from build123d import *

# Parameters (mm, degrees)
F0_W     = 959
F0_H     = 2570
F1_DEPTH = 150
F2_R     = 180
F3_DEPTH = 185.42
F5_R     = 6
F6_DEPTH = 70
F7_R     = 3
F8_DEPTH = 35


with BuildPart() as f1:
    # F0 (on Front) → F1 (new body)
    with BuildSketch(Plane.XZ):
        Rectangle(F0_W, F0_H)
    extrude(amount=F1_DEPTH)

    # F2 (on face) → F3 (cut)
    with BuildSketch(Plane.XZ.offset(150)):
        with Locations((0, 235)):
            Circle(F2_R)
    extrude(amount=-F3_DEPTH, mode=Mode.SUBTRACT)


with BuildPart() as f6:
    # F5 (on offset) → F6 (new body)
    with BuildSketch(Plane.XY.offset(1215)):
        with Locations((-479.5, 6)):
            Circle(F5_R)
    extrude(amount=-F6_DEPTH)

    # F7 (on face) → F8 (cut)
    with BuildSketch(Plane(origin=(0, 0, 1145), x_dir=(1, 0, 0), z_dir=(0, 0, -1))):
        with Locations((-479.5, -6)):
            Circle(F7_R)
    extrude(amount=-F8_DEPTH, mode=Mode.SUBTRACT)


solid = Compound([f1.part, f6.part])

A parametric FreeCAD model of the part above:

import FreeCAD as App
import Part
import Sketcher


def add_polygon(sketch, points):
    """Adds a closed chain of lines whose ends are joined by coincident constraints."""
    first, n = sketch.GeometryCount, len(points)
    for a, b in zip(points, points[1:] + points[:1]):
        sketch.addGeometry(Part.LineSegment(App.Vector(*a, 0), App.Vector(*b, 0)), False)
    for i in range(n):
        sketch.addConstraint(Sketcher.Constraint("Coincident", first + i, 2, first + (i + 1) % n, 1))

doc = App.newDocument("Part")
body = doc.addObject("PartDesign::Body", "Body")

sketch1 = doc.addObject("Sketcher::SketchObject", "Sketch")
body.addObject(sketch1)
sketch1.AttachmentSupport = (doc.XZ_Plane, [""])
sketch1.MapMode = "FlatFace"
add_polygon(sketch1, [(-480, 1285), (-480, -1285), (480, -1285), (480, 1285)])
sketch1.addConstraint(Sketcher.Constraint("Vertical", 0))
sketch1.addConstraint(Sketcher.Constraint("Horizontal", 1))
sketch1.addConstraint(Sketcher.Constraint("Vertical", 2))
sketch1.addConstraint(Sketcher.Constraint("Horizontal", 3))
sketch1.addConstraint(Sketcher.Constraint("Symmetric", 0, 2, 2, 2, -1, 1))
sketch1.addConstraint(Sketcher.Constraint("DistanceX", 1, 1, 1, 2, 959.0))
sketch1.addConstraint(Sketcher.Constraint("DistanceY", 0, 2, 0, 1, 2570.0))
pad1 = doc.addObject("PartDesign::Pad", "Pad")
body.addObject(pad1)
pad1.Profile = sketch1
pad1.Length = 150

sketch2 = doc.addObject("Sketcher::SketchObject", "Sketch001")
body.addObject(sketch2)
sketch2.AttachmentSupport = (doc.XZ_Plane, [""])
sketch2.MapMode = "FlatFace"
sketch2.AttachmentOffset = App.Placement(App.Vector(0, 0, 150), App.Rotation())
sketch2.addGeometry(Part.Circle(App.Vector(0, 235, 0), App.Vector(0, 0, 1), 180), False)
sketch2.addConstraint(Sketcher.Constraint("PointOnObject", 0, 3, -2))
sketch2.addConstraint(Sketcher.Constraint("Diameter", 0, 360.0))
sketch2.addConstraint(Sketcher.Constraint("DistanceY", -1, 1, 0, 3, 235.0))
pocket1 = doc.addObject("PartDesign::Pocket", "Pocket")
body.addObject(pocket1)
pocket1.Profile = sketch2
pocket1.Length = 185.42
body2 = doc.addObject("PartDesign::Body", "Body001")

sketch3 = doc.addObject("Sketcher::SketchObject", "Sketch002")
body2.addObject(sketch3)
sketch3.AttachmentSupport = (doc.getObject("XY_Plane001"), [""])
sketch3.MapMode = "FlatFace"
sketch3.AttachmentOffset = App.Placement(App.Vector(0, 0, 1215), App.Rotation())
sketch3.addGeometry(Part.Circle(App.Vector(-480, 6, 0), App.Vector(0, 0, 1), 6), False)
sketch3.addConstraint(Sketcher.Constraint("Diameter", 0, 12.0))
sketch3.addConstraint(Sketcher.Constraint("DistanceY", -1, 1, 0, 3, 6.0))
sketch3.addConstraint(Sketcher.Constraint("DistanceX", 0, 3, -1, 1, 479.5))
pad2 = doc.addObject("PartDesign::Pad", "Pad001")
body2.addObject(pad2)
pad2.Profile = sketch3
pad2.Length = 70
pad2.Reversed = True

sketch4 = doc.addObject("Sketcher::SketchObject", "Sketch003")
body2.addObject(sketch4)
sketch4.AttachmentSupport = (doc.getObject("XY_Plane001"), [""])
sketch4.MapMode = "FlatFace"
sketch4.AttachmentOffset = App.Placement(App.Vector(0, 0, 1145), App.Rotation())
sketch4.addGeometry(Part.Circle(App.Vector(-479.5, 6, 0), App.Vector(0, 0, 1), 3), False)
sketch4.addConstraint(Sketcher.Constraint("Diameter", 0, 6.0))
sketch4.addConstraint(Sketcher.Constraint("DistanceY", -1, 1, 0, 3, 6.0))
sketch4.addConstraint(Sketcher.Constraint("DistanceX", 0, 3, -1, 1, 479.5))
pocket2 = doc.addObject("PartDesign::Pocket", "Pocket001")
body2.addObject(pocket2)
pocket2.Profile = sketch4
pocket2.Length = 35
pocket2.Reversed = True

doc.recompute()
